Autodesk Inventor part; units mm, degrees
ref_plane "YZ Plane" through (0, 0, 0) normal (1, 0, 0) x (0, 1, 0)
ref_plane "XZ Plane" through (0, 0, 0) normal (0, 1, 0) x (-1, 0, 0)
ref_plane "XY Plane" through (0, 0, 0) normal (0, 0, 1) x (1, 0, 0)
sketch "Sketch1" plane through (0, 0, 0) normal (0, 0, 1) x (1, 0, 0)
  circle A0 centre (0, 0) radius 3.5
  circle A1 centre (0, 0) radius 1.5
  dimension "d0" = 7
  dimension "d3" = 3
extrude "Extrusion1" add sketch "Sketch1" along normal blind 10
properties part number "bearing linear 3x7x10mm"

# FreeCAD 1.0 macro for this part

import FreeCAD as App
import Part
import Sketcher

V = App.Vector

doc = App.newDocument("Part")
body = doc.addObject("PartDesign::Body", "Body")

sketch1 = doc.addObject("Sketcher::SketchObject", "Sketch")
body.addObject(sketch1)
sketch1.AttachmentSupport = (doc.XY_Plane, [""])
sketch1.MapMode = "FlatFace"
sketch1.addGeometry(Part.Circle(V(0, 0, 0), V(0, 0, 1), 3.5), False)
sketch1.addGeometry(Part.Circle(V(0, 0, 0), V(0, 0, 1), 1.5), False)
sketch1.addConstraint(Sketcher.Constraint("Coincident", 0, 3, -1, 1))
sketch1.addConstraint(Sketcher.Constraint("Coincident", 1, 3, -1, 1))
sketch1.addConstraint(Sketcher.Constraint("Diameter", 0, 7.0))
sketch1.addConstraint(Sketcher.Constraint("Diameter", 1, 3.0))
pad1 = doc.addObject("PartDesign::Pad", "Pad")
body.addObject(pad1)
pad1.Profile = sketch1
pad1.Length = 10

doc.recompute()
